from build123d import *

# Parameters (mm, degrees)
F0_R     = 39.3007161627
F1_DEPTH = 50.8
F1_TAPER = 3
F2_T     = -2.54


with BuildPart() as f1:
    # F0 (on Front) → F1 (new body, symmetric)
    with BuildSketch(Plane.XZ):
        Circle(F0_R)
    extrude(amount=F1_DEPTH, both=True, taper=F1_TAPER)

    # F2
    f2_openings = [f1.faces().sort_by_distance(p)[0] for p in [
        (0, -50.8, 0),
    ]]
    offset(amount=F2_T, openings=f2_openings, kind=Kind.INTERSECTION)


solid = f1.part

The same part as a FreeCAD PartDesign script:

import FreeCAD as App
import Part
import Sketcher

V = App.Vector
Q = App.Units.Quantity


def faces_at(feature, points):
    """Names of the faces that lie closest to the given points."""
    faces = feature.Shape.Faces
    near = lambda p: min(range(len(faces)), key=lambda i: faces[i].distToShape(Part.Vertex(*p))[0])
    return sorted({f"Face{near(p) + 1}" for p in points})

doc = App.newDocument("Part")
params = doc.addObject("Spreadsheet::Sheet", "Params")
for row, (alias, value) in enumerate([
    ("pad1_length", "4 in"),
    ("pad1_taper", "-3 deg"),
    ("thickness_wall", "0.1 in"),
], start=1):
    params.set(f"A{row}", alias)
    params.set(f"B{row}", "=" + value)
    params.setAlias(f"B{row}", alias)

body = doc.addObject("PartDesign::Body", "Body")

# Sketch on XZ plane
sketch1 = body.newObject("Sketcher::SketchObject", "Sketch")
sketch1.AttachmentSupport = (doc.getObject("XZ_Plane"), [""])
sketch1.MapMode = "FlatFace"
sketch1.addGeometry(Part.Circle(V(0, 0, 0), V(0, 0, 1), 39.300716), False)
sketch1.addConstraint([
    Sketcher.Constraint("Coincident", 0, 3, -1, 1),
    Sketcher.Constraint("Diameter", 0, Q("78.601432 mm")),
])
pad1 = body.newObject("PartDesign::Pad", "Pad")
pad1.Profile = sketch1
pad1.setExpression("Length", "Params.pad1_length")
pad1.Midplane = True
pad1.setExpression("TaperAngle", "Params.pad1_taper")
doc.recompute()

thickness = body.newObject("PartDesign::Thickness", "Thickness")
thickness.Base = (pad1, faces_at(pad1, [(0, -50.8, 0)]))
thickness.setExpression("Value", "Params.thickness_wall")
thickness.Reversed = True
thickness.Join = "Intersection"

doc.recompute()
